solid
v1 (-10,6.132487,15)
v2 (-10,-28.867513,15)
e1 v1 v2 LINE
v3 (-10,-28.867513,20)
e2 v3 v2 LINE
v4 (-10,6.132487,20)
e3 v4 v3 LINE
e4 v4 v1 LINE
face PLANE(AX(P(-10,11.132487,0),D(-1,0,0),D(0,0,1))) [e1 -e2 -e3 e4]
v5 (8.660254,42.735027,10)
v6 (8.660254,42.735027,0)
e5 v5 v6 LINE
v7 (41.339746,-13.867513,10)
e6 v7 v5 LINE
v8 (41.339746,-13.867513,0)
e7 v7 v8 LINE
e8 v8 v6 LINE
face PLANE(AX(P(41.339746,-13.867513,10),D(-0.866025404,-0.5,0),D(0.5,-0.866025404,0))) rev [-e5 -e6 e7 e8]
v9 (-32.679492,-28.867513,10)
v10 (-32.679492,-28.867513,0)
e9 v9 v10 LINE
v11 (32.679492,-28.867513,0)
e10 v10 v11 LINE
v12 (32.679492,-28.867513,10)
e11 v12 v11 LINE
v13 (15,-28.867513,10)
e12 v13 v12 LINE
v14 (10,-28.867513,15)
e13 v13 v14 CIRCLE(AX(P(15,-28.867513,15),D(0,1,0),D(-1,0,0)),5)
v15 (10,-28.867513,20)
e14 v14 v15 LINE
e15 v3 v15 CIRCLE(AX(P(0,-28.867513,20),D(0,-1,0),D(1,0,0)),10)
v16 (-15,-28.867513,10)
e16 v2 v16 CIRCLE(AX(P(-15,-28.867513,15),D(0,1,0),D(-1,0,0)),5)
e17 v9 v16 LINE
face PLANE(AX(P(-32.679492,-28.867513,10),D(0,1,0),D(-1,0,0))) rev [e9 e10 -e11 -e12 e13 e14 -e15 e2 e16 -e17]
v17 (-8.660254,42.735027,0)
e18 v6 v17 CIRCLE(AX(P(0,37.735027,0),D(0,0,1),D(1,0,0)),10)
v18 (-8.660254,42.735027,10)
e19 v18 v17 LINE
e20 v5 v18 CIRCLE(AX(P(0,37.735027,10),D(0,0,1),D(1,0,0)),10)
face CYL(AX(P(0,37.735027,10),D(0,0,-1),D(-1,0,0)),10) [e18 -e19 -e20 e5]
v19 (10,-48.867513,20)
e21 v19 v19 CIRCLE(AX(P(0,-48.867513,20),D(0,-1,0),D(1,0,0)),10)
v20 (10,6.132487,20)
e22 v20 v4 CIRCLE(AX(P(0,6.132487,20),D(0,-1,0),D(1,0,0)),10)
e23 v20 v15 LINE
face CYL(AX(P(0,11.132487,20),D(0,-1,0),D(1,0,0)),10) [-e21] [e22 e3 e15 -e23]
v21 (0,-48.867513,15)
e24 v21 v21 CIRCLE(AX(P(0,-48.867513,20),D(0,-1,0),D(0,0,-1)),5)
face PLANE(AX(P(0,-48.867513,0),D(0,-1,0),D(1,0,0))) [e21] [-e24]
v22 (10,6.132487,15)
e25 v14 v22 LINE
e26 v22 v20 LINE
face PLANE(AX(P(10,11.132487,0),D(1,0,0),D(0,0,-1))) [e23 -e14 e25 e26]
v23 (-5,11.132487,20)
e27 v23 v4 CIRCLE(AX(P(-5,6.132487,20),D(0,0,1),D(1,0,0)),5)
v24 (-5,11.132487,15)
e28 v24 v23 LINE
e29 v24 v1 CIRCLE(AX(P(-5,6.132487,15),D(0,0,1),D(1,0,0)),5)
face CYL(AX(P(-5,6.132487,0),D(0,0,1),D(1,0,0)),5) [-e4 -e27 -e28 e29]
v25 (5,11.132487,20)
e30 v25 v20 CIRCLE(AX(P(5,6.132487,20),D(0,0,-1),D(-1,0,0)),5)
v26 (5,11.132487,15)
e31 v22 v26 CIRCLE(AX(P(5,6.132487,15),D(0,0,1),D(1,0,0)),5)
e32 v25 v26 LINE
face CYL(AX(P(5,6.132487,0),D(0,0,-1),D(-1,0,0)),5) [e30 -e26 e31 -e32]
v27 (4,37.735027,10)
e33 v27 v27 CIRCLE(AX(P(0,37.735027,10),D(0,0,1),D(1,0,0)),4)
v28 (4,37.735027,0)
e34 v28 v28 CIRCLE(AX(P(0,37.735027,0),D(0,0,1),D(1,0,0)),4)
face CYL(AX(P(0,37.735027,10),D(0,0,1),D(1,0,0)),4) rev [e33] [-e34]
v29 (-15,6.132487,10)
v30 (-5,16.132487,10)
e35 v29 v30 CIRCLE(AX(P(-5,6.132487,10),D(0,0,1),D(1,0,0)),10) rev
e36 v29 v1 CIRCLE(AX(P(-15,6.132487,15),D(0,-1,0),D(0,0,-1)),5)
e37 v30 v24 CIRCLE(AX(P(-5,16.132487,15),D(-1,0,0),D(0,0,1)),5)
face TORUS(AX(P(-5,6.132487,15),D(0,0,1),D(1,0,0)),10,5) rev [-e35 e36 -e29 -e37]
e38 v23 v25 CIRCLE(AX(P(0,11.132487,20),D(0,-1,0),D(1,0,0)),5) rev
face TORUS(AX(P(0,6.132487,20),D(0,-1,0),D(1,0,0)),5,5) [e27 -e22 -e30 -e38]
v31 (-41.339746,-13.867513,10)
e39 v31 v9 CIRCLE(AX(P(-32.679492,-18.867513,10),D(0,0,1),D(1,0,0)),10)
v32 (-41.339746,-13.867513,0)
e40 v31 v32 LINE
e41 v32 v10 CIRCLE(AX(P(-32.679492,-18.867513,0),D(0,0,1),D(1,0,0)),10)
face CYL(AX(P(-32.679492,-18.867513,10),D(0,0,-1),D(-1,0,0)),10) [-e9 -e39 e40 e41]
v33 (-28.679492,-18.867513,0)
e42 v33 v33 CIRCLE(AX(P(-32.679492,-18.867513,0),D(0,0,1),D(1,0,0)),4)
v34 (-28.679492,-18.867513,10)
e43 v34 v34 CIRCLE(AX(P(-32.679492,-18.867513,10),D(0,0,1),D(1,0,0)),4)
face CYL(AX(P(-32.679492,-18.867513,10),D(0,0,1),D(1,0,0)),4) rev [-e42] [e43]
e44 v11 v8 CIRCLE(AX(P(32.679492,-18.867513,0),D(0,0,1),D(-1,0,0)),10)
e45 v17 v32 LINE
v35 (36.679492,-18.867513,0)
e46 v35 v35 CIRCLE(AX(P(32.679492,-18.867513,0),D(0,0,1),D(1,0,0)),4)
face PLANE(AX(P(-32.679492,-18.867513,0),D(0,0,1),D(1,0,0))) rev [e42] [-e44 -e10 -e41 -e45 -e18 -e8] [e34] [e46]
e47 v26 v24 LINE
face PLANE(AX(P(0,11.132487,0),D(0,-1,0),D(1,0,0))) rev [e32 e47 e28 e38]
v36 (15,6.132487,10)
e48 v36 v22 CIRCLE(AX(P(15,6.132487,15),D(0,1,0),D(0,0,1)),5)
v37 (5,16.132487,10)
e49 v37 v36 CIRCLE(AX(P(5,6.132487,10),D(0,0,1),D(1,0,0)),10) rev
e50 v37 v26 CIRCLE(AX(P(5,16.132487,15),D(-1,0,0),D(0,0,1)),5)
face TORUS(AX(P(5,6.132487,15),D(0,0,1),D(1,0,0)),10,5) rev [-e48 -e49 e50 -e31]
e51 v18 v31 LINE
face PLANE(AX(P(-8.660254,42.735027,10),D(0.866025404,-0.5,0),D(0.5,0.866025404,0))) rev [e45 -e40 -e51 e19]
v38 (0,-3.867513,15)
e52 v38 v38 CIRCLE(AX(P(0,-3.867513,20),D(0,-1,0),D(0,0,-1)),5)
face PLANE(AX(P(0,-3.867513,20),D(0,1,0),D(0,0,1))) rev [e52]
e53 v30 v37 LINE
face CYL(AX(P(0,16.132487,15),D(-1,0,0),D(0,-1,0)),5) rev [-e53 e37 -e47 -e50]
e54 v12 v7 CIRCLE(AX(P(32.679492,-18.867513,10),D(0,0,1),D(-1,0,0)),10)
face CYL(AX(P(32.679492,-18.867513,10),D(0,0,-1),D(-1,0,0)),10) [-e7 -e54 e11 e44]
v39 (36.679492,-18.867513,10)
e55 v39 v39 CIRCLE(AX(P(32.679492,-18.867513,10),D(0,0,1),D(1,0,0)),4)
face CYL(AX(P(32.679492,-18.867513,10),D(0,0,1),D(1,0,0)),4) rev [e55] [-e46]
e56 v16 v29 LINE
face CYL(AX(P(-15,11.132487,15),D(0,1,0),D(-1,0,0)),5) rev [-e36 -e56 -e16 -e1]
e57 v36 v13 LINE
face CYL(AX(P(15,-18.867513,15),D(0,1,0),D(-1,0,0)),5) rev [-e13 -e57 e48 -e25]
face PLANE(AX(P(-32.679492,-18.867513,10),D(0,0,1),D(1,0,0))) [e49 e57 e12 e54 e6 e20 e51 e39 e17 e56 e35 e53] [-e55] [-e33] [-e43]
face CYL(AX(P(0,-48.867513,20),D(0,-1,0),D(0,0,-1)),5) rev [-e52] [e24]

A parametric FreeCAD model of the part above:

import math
import FreeCAD as App
import Part
import Sketcher
Q = App.Units.Quantity


def edges_at(feature, points):
    """Names of the edges that pass closest to the given points."""
    edges = feature.Shape.Edges
    near = lambda p: min(range(len(edges)), key=lambda i: edges[i].distToShape(Part.Vertex(*p))[0])
    return sorted({f"Edge{near(p) + 1}" for p in points})

doc = App.newDocument("Part")
body = doc.addObject("PartDesign::Body", "Body")

# Sketch on XY plane
sketch1 = doc.addObject("Sketcher::SketchObject", "Sketch")
body.addObject(sketch1)
sketch1.AttachmentSupport = (doc.XY_Plane, [""])
sketch1.MapMode = "FlatFace"
sketch1.addGeometry([
    Part.LineSegment(App.Vector(41, -14, 0), App.Vector(9, 43, 0)),  # 0
    Part.ArcOfCircle(Part.Circle(App.Vector(0, 38, 0), App.Vector(0, 0, 1), 10), math.radians(30), math.radians(150)),  # 1
    Part.LineSegment(App.Vector(-9, 43, 0), App.Vector(-41, -14, 0)),  # 2
    Part.ArcOfCircle(Part.Circle(App.Vector(-33, -19, 0), App.Vector(0, 0, 1), 10), math.radians(150), math.radians(270)),  # 3
    Part.LineSegment(App.Vector(-33, -29, 0), App.Vector(33, -29, 0)),  # 4
    Part.ArcOfCircle(Part.Circle(App.Vector(33, -19, 0), App.Vector(0, 0, 1), 10), math.radians(-90), math.radians(30)),  # 5
], False)
sketch1.addConstraint([
    Sketcher.Constraint("Tangent", 0, 2, 1, 1),
    Sketcher.Constraint("Tangent", 1, 2, 2, 1),
    Sketcher.Constraint("Tangent", 2, 2, 3, 1),
    Sketcher.Constraint("Tangent", 3, 2, 4, 1),
    Sketcher.Constraint("Tangent", 4, 2, 5, 1),
    Sketcher.Constraint("Tangent", 5, 2, 0, 1),
    Sketcher.Constraint("Horizontal", 4),
    Sketcher.Constraint("Equal", 1, 3),
    Sketcher.Constraint("Equal", 3, 5),
    Sketcher.Constraint("Symmetric", 0, 2, 1, 2, -2),
    Sketcher.Constraint("Radius", 1, Q("10 mm")),
    Sketcher.Constraint("Angle", 0, Q("120 deg")),
    Sketcher.Constraint("DistanceX", 2, 2, 0, 2, Q("50 mm")),
    Sketcher.Constraint("DistanceY", -1, 1, 1, 3, Q("37.735027 mm")),
])
pad1 = doc.addObject("PartDesign::Pad", "Pad")
body.addObject(pad1)
pad1.Profile = sketch1
pad1.Length = 10

# Sketch on XZ plane
sketch2 = doc.addObject("Sketcher::SketchObject", "Sketch001")
body.addObject(sketch2)
sketch2.AttachmentSupport = (doc.XZ_Plane, [""])
sketch2.MapMode = "FlatFace"
sketch2.AttachmentOffset = App.Placement(App.Vector(0, 0, 28.867513), App.Rotation())
sketch2.addGeometry([
    Part.LineSegment(App.Vector(-10, 10, 0), App.Vector(10, 10, 0)),
    Part.LineSegment(App.Vector(10, 10, 0), App.Vector(10, 20, 0)),
    Part.ArcOfCircle(Part.Circle(App.Vector(0, 20, 0), App.Vector(0, 0, 1), 10), math.radians(0), math.radians(180)),
    Part.LineSegment(App.Vector(-10, 20, 0), App.Vector(-10, 10, 0)),
], False)
sketch2.addConstraint([
    Sketcher.Constraint("Coincident", 0, 2, 1, 1),
    Sketcher.Constraint("Tangent", 1, 2, 2, 1),
    Sketcher.Constraint("Tangent", 2, 2, 3, 1),
    Sketcher.Constraint("Coincident", 3, 2, 0, 1),
    Sketcher.Constraint("Horizontal", 0),
    Sketcher.Constraint("Vertical", 1),
    Sketcher.Constraint("Vertical", 3),
    Sketcher.Constraint("PointOnObject", 2, 3, -2),
    Sketcher.Constraint("Radius", 2, Q("10 mm")),
    Sketcher.Constraint("DistanceY", 1, 1, 1, 2, Q("10 mm")),
    Sketcher.Constraint("DistanceY", -1, 1, 2, 3, Q("20 mm")),
])
pad2 = doc.addObject("PartDesign::Pad", "Pad001")
body.addObject(pad2)
pad2.Profile = sketch2
pad2.Length = 40
pad2.Reversed = True

# Sketch on XZ plane
sketch3 = doc.addObject("Sketcher::SketchObject", "Sketch002")
body.addObject(sketch3)
sketch3.AttachmentSupport = (doc.XZ_Plane, [""])
sketch3.MapMode = "FlatFace"
sketch3.AttachmentOffset = App.Placement(App.Vector(0, 0, 48.867513), App.Rotation())
sketch3.addGeometry(Part.Circle(App.Vector(0, 20, 0), App.Vector(0, 0, 1), 10), False)
sketch3.addConstraint([
    Sketcher.Constraint("PointOnObject", 0, 3, -2),
    Sketcher.Constraint("Diameter", 0, Q("20 mm")),
    Sketcher.Constraint("DistanceY", -1, 1, 0, 3, Q("20 mm")),
])
pad3 = doc.addObject("PartDesign::Pad", "Pad002")
body.addObject(pad3)
pad3.Profile = sketch3
pad3.Length = 20
pad3.Reversed = True

# Sketch on XZ plane
sketch4 = doc.addObject("Sketcher::SketchObject", "Sketch003")
body.addObject(sketch4)
sketch4.AttachmentSupport = (doc.XZ_Plane, [""])
sketch4.MapMode = "FlatFace"
sketch4.AttachmentOffset = App.Placement(App.Vector(0, 0, 48.867513), App.Rotation())
sketch4.addGeometry(Part.Circle(App.Vector(0, 20, 0), App.Vector(0, 0, 1), 5), False)
sketch4.addConstraint([
    Sketcher.Constraint("PointOnObject", 0, 3, -2),
    Sketcher.Constraint("Diameter", 0, Q("10 mm")),
    Sketcher.Constraint("DistanceY", -1, 1, 0, 3, Q("20 mm")),
])
doc.recompute()
hole = doc.addObject("PartDesign::Hole", "Hole")
body.addObject(hole)
hole.Profile = sketch4
hole.ThreadType = "None"
hole.Diameter = 10
hole.DepthType = "Dimension"
hole.Depth = 45
hole.DrillPoint = "Flat"

# Sketch on XY plane
sketch5 = doc.addObject("Sketcher::SketchObject", "Sketch004")
body.addObject(sketch5)
sketch5.AttachmentSupport = (doc.XY_Plane, [""])
sketch5.MapMode = "FlatFace"
sketch5.AttachmentOffset = App.Placement(App.Vector(0, 0, 10), App.Rotation())
sketch5.addGeometry([
    Part.Circle(App.Vector(0, 37.7, 0), App.Vector(0, 0, 1), 4),
    Part.Circle(App.Vector(-32.7, -18.9, 0), App.Vector(0, 0, 1), 4),
    Part.Circle(App.Vector(32.7, -18.9, 0), App.Vector(0, 0, 1), 4),
], False)
sketch5.addConstraint([
    Sketcher.Constraint("Equal", 0, 1),
    Sketcher.Constraint("Equal", 1, 2),
    Sketcher.Constraint("Symmetric", 1, 3, 2, 3, -2),
    Sketcher.Constraint("PointOnObject", 0, 3, -2),
    Sketcher.Constraint("Diameter", 0, Q("8 mm")),
    Sketcher.Constraint("DistanceX", 1, 3, -1, 1, Q("32.679492 mm")),
    Sketcher.Constraint("DistanceY", 1, 3, 0, 3, Q("56.60254 mm")),
    Sketcher.Constraint("DistanceY", -1, 1, 0, 3, Q("37.735027 mm")),
])
doc.recompute()
hole2 = doc.addObject("PartDesign::Hole", "Hole001")
body.addObject(hole2)
hole2.Profile = sketch5
hole2.ThreadType = "None"
hole2.Diameter = 8
hole2.DepthType = "ThroughAll"
doc.recompute()

fillet = doc.addObject("PartDesign::Fillet", "Fillet")
body.addObject(fillet)
fillet.Base = (hole2, edges_at(hole2, [(0, 11.132, 30), (10, 11.132, 15), (-10, 11.132, 15)]))
fillet.Radius = 5
doc.recompute()

fillet2 = doc.addObject("PartDesign::Fillet", "Fillet001")
body.addObject(fillet2)
fillet2.Base = (fillet, edges_at(fillet, [
    (10, -11.368, 10),
    (0, 11.132, 10),
    (-10, -11.368, 10),
    (8.536, 9.668, 10),
    (-8.536, 9.668, 10),
]))
fillet2.Radius = 5

doc.recompute()
